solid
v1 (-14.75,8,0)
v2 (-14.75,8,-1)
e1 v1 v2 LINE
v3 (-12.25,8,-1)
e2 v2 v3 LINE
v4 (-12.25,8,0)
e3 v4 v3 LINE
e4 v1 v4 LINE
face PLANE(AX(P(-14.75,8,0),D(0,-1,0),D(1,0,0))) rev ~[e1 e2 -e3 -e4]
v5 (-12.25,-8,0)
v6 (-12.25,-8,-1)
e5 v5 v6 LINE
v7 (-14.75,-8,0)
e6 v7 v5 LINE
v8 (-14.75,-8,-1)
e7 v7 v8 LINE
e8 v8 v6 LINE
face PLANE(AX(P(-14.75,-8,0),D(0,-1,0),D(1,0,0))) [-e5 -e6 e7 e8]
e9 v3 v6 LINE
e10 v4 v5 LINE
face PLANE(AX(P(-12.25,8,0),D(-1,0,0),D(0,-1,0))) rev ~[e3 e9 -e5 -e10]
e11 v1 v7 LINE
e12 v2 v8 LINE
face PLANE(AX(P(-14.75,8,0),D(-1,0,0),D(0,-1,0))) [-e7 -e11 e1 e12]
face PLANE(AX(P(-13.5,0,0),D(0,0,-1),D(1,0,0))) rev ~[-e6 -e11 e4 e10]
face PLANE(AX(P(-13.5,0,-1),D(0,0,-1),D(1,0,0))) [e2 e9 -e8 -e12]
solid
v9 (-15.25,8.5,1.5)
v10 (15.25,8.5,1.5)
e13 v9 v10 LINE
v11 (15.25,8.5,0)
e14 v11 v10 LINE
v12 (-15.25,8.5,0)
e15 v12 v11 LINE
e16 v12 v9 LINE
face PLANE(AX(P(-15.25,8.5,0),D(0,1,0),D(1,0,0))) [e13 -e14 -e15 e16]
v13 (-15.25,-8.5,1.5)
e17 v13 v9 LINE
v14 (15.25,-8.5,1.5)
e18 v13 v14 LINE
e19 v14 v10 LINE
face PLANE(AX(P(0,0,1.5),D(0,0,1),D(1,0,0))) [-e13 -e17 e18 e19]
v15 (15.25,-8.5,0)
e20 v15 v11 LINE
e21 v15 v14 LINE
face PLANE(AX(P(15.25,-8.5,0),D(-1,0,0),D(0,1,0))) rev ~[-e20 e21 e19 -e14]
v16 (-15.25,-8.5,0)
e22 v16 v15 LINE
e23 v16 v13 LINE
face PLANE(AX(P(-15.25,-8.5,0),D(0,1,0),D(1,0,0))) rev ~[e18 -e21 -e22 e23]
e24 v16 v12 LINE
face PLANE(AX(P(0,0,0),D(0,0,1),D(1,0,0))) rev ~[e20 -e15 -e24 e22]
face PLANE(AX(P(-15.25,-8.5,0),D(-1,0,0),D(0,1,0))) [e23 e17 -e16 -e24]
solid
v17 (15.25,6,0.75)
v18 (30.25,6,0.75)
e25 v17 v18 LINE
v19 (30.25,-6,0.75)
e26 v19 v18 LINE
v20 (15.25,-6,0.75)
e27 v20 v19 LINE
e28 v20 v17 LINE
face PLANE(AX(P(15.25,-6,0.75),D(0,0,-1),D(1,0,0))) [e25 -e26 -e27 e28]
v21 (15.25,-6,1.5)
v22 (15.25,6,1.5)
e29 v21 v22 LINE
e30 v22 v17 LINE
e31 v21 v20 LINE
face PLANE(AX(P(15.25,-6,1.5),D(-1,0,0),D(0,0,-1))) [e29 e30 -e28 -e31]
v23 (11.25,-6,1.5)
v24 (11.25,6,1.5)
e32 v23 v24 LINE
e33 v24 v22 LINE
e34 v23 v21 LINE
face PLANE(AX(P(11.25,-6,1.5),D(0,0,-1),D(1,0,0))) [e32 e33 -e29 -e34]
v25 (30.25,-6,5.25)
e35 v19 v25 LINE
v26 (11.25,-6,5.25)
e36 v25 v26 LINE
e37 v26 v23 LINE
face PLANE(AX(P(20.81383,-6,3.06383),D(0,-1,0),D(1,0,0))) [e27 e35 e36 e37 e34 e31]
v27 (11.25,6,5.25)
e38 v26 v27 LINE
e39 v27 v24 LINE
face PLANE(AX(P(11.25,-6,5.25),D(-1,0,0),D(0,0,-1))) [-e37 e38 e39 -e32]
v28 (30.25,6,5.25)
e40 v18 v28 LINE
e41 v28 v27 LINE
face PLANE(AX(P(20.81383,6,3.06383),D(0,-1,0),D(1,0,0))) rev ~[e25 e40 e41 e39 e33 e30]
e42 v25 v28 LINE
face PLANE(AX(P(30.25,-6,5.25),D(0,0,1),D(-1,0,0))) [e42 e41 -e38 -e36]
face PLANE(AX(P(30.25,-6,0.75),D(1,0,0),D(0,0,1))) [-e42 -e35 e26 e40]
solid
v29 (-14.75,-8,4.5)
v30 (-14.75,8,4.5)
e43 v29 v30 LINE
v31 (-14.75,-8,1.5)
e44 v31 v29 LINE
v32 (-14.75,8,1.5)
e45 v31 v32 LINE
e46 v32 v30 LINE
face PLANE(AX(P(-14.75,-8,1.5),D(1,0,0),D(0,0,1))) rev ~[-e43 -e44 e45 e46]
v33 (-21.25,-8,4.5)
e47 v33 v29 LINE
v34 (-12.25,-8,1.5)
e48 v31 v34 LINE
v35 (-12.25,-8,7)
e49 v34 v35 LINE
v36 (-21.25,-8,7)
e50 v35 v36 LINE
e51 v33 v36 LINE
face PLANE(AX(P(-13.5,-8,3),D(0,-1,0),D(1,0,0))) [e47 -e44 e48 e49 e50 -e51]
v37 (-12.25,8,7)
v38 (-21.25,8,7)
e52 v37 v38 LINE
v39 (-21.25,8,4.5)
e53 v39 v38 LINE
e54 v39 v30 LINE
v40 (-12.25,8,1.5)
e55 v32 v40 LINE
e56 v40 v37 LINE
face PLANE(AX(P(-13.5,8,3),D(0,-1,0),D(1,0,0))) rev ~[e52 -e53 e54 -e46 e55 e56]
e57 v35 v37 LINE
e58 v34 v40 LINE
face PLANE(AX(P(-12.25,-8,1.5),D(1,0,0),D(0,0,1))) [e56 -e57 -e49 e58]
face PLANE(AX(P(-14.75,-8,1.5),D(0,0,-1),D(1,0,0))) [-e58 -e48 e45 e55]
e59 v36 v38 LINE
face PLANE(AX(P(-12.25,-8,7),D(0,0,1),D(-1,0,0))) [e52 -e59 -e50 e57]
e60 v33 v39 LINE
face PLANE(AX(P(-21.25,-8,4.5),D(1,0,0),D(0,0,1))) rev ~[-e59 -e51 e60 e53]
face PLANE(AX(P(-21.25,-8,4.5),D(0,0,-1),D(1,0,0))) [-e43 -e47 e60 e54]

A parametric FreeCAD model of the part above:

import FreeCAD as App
import Part
import Sketcher

V = App.Vector
Q = App.Units.Quantity


def add_polygon(sketch, points):
    """Adds a closed chain of lines whose ends are joined by coincident constraints."""
    first, n = sketch.GeometryCount, len(points)
    for a, b in zip(points, points[1:] + points[:1]):
        sketch.addGeometry(Part.LineSegment(App.Vector(*a, 0), App.Vector(*b, 0)), False)
    for i in range(n):
        sketch.addConstraint(Sketcher.Constraint("Coincident", first + i, 2, first + (i + 1) % n, 1))

doc = App.newDocument("Part")
params = doc.addObject("Spreadsheet::Sheet", "Params")
for row, (alias, value) in enumerate([
    ("sketch1_height", "17 mm"),
    ("sketch1_width", "30.5 mm"),
    ("pad1_length", "1.5 mm"),
    ("sketch2_width", "4 mm"),
    ("sketch2_width2", "15 mm"),
    ("sketch2_height", "4.5 mm"),
    ("sketch2_height2", "0.75 mm"),
    ("pad2_length", "12 mm"),
    ("sketch3_width", "9 mm"),
    ("sketch3_height", "3 mm"),
    ("sketch3_width2", "2.5 mm"),
    ("pad3_length", "16 mm"),
    ("sketch4_height", "16 mm"),
    ("sketch4_width", "2.5 mm"),
    ("pad4_length", "1 mm"),
], start=1):
    params.set(f"A{row}", alias)
    params.set(f"B{row}", "=" + value)
    params.setAlias(f"B{row}", alias)

body = doc.addObject("PartDesign::Body", "Body")

# Sketch on XY plane
sketch1 = doc.addObject("Sketcher::SketchObject", "Sketch")
body.addObject(sketch1)
sketch1.AttachmentSupport = (doc.XY_Plane, [""])
sketch1.MapMode = "FlatFace"
add_polygon(sketch1, [(-15.25, 8.5), (-15.25, -8.5), (15.25, -8.5), (15.25, 8.5)])  # lines 0-3
sketch1.addConstraint(Sketcher.Constraint("Vertical", 0))
sketch1.addConstraint(Sketcher.Constraint("Horizontal", 1))
sketch1.addConstraint(Sketcher.Constraint("Vertical", 2))
sketch1.addConstraint(Sketcher.Constraint("Horizontal", 3))
sketch1.addConstraint(Sketcher.Constraint("Symmetric", 0, 2, 2, 2, -1, 1))
sketch1.addConstraint(Sketcher.Constraint("DistanceY", 0, 2, 0, 1, Q("17 mm")))
sketch1.addConstraint(Sketcher.Constraint("DistanceX", 1, 1, 1, 2, Q("30.5 mm")))
sketch1.setExpression("Constraints[9]", "Params.sketch1_height")
sketch1.setExpression("Constraints[10]", "Params.sketch1_width")
pad1 = doc.addObject("PartDesign::Pad", "Pad")
body.addObject(pad1)
pad1.Profile = sketch1
pad1.setExpression("Length", "Params.pad1_length")
body2 = doc.addObject("PartDesign::Body", "Body001")

# Sketch on XZ plane
sketch2 = doc.addObject("Sketcher::SketchObject", "Sketch001")
body2.addObject(sketch2)
sketch2.AttachmentSupport = (doc.getObject("XZ_Plane001"), [""])
sketch2.MapMode = "FlatFace"
sketch2.AttachmentOffset = App.Placement(V(0, 0, 6), App.Rotation())
add_polygon(sketch2, [(11.25, 1.5), (15.25, 1.5), (15.25, 0.75), (30.25, 0.75), (30.25, 5.25), (11.25, 5.25)])  # lines 0-5
sketch2.addConstraint(Sketcher.Constraint("Horizontal", 0))
sketch2.addConstraint(Sketcher.Constraint("Vertical", 1))
sketch2.addConstraint(Sketcher.Constraint("Horizontal", 2))
sketch2.addConstraint(Sketcher.Constraint("Vertical", 3))
sketch2.addConstraint(Sketcher.Constraint("Horizontal", 4))
sketch2.addConstraint(Sketcher.Constraint("Vertical", 5))
sketch2.addConstraint(Sketcher.Constraint("DistanceX", 0, 1, 0, 2, Q("4 mm")))
sketch2.addConstraint(Sketcher.Constraint("DistanceX", 2, 1, 2, 2, Q("15 mm")))
sketch2.addConstraint(Sketcher.Constraint("DistanceY", 3, 1, 3, 2, Q("4.5 mm")))
sketch2.addConstraint(Sketcher.Constraint("DistanceY", 1, 2, 1, 1, Q("0.75 mm")))
sketch2.addConstraint(Sketcher.Constraint("DistanceY", -1, 1, 0, 2, Q("1.5 mm")))
sketch2.addConstraint(Sketcher.Constraint("DistanceX", -1, 1, 0, 2, Q("15.25 mm")))
sketch2.setExpression("Constraints[12]", "Params.sketch2_width")
sketch2.setExpression("Constraints[13]", "Params.sketch2_width2")
sketch2.setExpression("Constraints[14]", "Params.sketch2_height")
sketch2.setExpression("Constraints[15]", "Params.sketch2_height2")
pad2 = doc.addObject("PartDesign::Pad", "Pad001")
body2.addObject(pad2)
pad2.Profile = sketch2
pad2.setExpression("Length", "Params.pad2_length")
pad2.Reversed = True
body3 = doc.addObject("PartDesign::Body", "Body002")

# Sketch on XZ plane
sketch3 = doc.addObject("Sketcher::SketchObject", "Sketch002")
body3.addObject(sketch3)
sketch3.AttachmentSupport = (doc.getObject("XZ_Plane002"), [""])
sketch3.MapMode = "FlatFace"
sketch3.AttachmentOffset = App.Placement(V(0, 0, 8), App.Rotation())
add_polygon(sketch3, [(-14.75, 4.5), (-14.75, 1.5), (-12.25, 1.5), (-12.25, 7), (-21.25, 7), (-21.25, 4.5)])  # lines 0-5
sketch3.addConstraint(Sketcher.Constraint("Vertical", 0))
sketch3.addConstraint(Sketcher.Constraint("Horizontal", 1))
sketch3.addConstraint(Sketcher.Constraint("Vertical", 2))
sketch3.addConstraint(Sketcher.Constraint("Horizontal", 3))
sketch3.addConstraint(Sketcher.Constraint("Vertical", 4))
sketch3.addConstraint(Sketcher.Constraint("Horizontal", 5))
sketch3.addConstraint(Sketcher.Constraint("Equal", 1, 4))
sketch3.addConstraint(Sketcher.Constraint("DistanceX", 3, 2, 3, 1, Q("9 mm")))
sketch3.addConstraint(Sketcher.Constraint("DistanceY", 0, 2, 0, 1, Q("3 mm")))
sketch3.addConstraint(Sketcher.Constraint("DistanceX", 1, 1, 1, 2, Q("2.5 mm")))
sketch3.addConstraint(Sketcher.Constraint("DistanceY", -1, 1, 2, 2, Q("7 mm")))
sketch3.addConstraint(Sketcher.Constraint("DistanceX", 0, 2, -1, 1, Q("14.75 mm")))
sketch3.setExpression("Constraints[13]", "Params.sketch3_width")
sketch3.setExpression("Constraints[14]", "Params.sketch3_height")
sketch3.setExpression("Constraints[15]", "Params.sketch3_width2")
pad3 = doc.addObject("PartDesign::Pad", "Pad002")
body3.addObject(pad3)
pad3.Profile = sketch3
pad3.setExpression("Length", "Params.pad3_length")
pad3.Reversed = True
body4 = doc.addObject("PartDesign::Body", "Body003")

# Sketch on XY plane
sketch4 = doc.addObject("Sketcher::SketchObject", "Sketch003")
body4.addObject(sketch4)
sketch4.AttachmentSupport = (doc.getObject("XY_Plane003"), [""])
sketch4.MapMode = "FlatFace"
add_polygon(sketch4, [(-14.75, -8), (-14.75, 8), (-12.25, 8), (-12.25, -8)])  # lines 0-3
sketch4.addConstraint(Sketcher.Constraint("Vertical", 0))
sketch4.addConstraint(Sketcher.Constraint("Horizontal", 1))
sketch4.addConstraint(Sketcher.Constraint("Vertical", 2))
sketch4.addConstraint(Sketcher.Constraint("Horizontal", 3))
sketch4.addConstraint(Sketcher.Constraint("DistanceY", 0, 1, 0, 2, Q("16 mm")))
sketch4.addConstraint(Sketcher.Constraint("DistanceX", 1, 1, 1, 2, Q("2.5 mm")))
sketch4.addConstraint(Sketcher.Constraint("DistanceY", -1, 1, 0, 2, Q("8 mm")))
sketch4.addConstraint(Sketcher.Constraint("DistanceX", 0, 2, -1, 1, Q("14.75 mm")))
sketch4.setExpression("Constraints[8]", "Params.sketch4_height")
sketch4.setExpression("Constraints[9]", "Params.sketch4_width")
pad4 = doc.addObject("PartDesign::Pad", "Pad003")
body4.addObject(pad4)
pad4.Profile = sketch4
pad4.setExpression("Length", "Params.pad4_length")
pad4.Reversed = True

doc.recompute()
